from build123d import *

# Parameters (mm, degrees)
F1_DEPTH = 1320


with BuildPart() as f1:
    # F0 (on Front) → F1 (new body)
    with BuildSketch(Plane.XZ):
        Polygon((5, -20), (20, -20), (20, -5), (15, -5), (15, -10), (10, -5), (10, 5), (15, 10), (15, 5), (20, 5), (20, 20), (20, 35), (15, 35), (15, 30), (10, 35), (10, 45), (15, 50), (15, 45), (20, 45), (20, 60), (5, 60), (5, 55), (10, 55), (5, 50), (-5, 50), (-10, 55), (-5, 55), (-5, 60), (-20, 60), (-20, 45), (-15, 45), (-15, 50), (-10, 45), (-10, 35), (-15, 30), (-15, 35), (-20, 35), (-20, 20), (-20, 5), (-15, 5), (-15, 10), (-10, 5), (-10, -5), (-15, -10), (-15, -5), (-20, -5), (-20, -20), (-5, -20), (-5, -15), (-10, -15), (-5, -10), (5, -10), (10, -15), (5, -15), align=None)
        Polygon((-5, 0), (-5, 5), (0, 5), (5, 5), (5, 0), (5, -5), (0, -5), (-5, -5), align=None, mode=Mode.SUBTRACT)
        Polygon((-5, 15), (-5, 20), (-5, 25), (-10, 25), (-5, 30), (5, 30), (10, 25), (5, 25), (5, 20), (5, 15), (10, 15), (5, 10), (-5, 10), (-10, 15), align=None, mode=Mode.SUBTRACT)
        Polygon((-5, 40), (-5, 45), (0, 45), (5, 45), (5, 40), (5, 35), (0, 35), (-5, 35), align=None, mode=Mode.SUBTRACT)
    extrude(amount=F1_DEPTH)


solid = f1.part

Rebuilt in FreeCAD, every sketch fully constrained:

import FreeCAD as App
import Part
import Sketcher
from FreeCAD import Vector
Q = App.Units.Quantity


def add_polygon(sketch, points):
    """Adds a closed chain of lines whose ends are joined by coincident constraints."""
    first, n = sketch.GeometryCount, len(points)
    for a, b in zip(points, points[1:] + points[:1]):
        sketch.addGeometry(Part.LineSegment(App.Vector(*a, 0), App.Vector(*b, 0)), False)
    for i in range(n):
        sketch.addConstraint(Sketcher.Constraint("Coincident", first + i, 2, first + (i + 1) % n, 1))

doc = App.newDocument("Part")
body = doc.addObject("PartDesign::Body", "Body")

# Sketch on XZ plane
sketch1 = body.newObject("Sketcher::SketchObject", "Sketch")
sketch1.AttachmentSupport = (doc.getObject("XZ_Plane"), [""])
sketch1.MapMode = "FlatFace"
add_polygon(sketch1, [(5, -20), (20, -20), (20, -5), (15, -5), (15, -10), (10, -5), (10, 5), (15, 10), (15, 5), (20, 5), (20, 35), (15, 35), (15, 30), (10, 35), (10, 45), (15, 50), (15, 45), (20, 45), (20, 60), (5, 60), (5, 55), (10, 55), (5, 50), (-5, 50), (-10, 55), (-5, 55), (-5, 60), (-20, 60), (-20, 45), (-15, 45), (-15, 50), (-10, 45), (-10, 35), (-15, 30), (-15, 35), (-20, 35), (-20, 5), (-15, 5), (-15, 10), (-10, 5), (-10, -5), (-15, -10), (-15, -5), (-20, -5), (-20, -20), (-5, -20), (-5, -15), (-10, -15), (-5, -10), (5, -10), (10, -15), (5, -15)])  # lines 0-51
add_polygon(sketch1, [(-5, -5), (-5, 5), (5, 5), (5, -5)])  # lines 52-55
add_polygon(sketch1, [(-10, 15), (-5, 15), (-5, 25), (-10, 25), (-5, 30), (5, 30), (10, 25), (5, 25), (5, 15), (10, 15), (5, 10), (-5, 10)])  # lines 56-67
add_polygon(sketch1, [(-5, 35), (-5, 45), (5, 45), (5, 35)])  # lines 68-71
sketch1.addConstraint(Sketcher.Constraint("Horizontal", 0))
sketch1.addConstraint(Sketcher.Constraint("Vertical", 1))
sketch1.addConstraint(Sketcher.Constraint("Horizontal", 2))
sketch1.addConstraint(Sketcher.Constraint("Vertical", 3))
sketch1.addConstraint(Sketcher.Constraint("Vertical", 5))
sketch1.addConstraint(Sketcher.Constraint("Vertical", 7))
sketch1.addConstraint(Sketcher.Constraint("Horizontal", 8))
sketch1.addConstraint(Sketcher.Constraint("Vertical", 9))
sketch1.addConstraint(Sketcher.Constraint("Horizontal", 10))
sketch1.addConstraint(Sketcher.Constraint("Vertical", 11))
sketch1.addConstraint(Sketcher.Constraint("Vertical", 13))
sketch1.addConstraint(Sketcher.Constraint("Vertical", 15))
sketch1.addConstraint(Sketcher.Constraint("Horizontal", 16))
sketch1.addConstraint(Sketcher.Constraint("Vertical", 17))
sketch1.addConstraint(Sketcher.Constraint("Horizontal", 18))
sketch1.addConstraint(Sketcher.Constraint("Vertical", 19))
sketch1.addConstraint(Sketcher.Constraint("Horizontal", 20))
sketch1.addConstraint(Sketcher.Constraint("Horizontal", 22))
sketch1.addConstraint(Sketcher.Constraint("Horizontal", 24))
sketch1.addConstraint(Sketcher.Constraint("Vertical", 25))
sketch1.addConstraint(Sketcher.Constraint("Horizontal", 26))
sketch1.addConstraint(Sketcher.Constraint("Vertical", 27))
sketch1.addConstraint(Sketcher.Constraint("Horizontal", 28))
sketch1.addConstraint(Sketcher.Constraint("Vertical", 29))
sketch1.addConstraint(Sketcher.Constraint("Vertical", 31))
sketch1.addConstraint(Sketcher.Constraint("Vertical", 33))
sketch1.addConstraint(Sketcher.Constraint("Horizontal", 34))
sketch1.addConstraint(Sketcher.Constraint("Vertical", 35))
sketch1.addConstraint(Sketcher.Constraint("Horizontal", 36))
sketch1.addConstraint(Sketcher.Constraint("Vertical", 37))
sketch1.addConstraint(Sketcher.Constraint("Vertical", 39))
sketch1.addConstraint(Sketcher.Constraint("Vertical", 41))
sketch1.addConstraint(Sketcher.Constraint("Horizontal", 42))
sketch1.addConstraint(Sketcher.Constraint("Vertical", 43))
sketch1.addConstraint(Sketcher.Constraint("Horizontal", 44))
sketch1.addConstraint(Sketcher.Constraint("Vertical", 45))
sketch1.addConstraint(Sketcher.Constraint("Horizontal", 46))
sketch1.addConstraint(Sketcher.Constraint("Horizontal", 48))
sketch1.addConstraint(Sketcher.Constraint("Horizontal", 50))
sketch1.addConstraint(Sketcher.Constraint("Vertical", 51))
sketch1.addConstraint(Sketcher.Constraint("Vertical", 52))
sketch1.addConstraint(Sketcher.Constraint("Horizontal", 53))
sketch1.addConstraint(Sketcher.Constraint("Vertical", 54))
sketch1.addConstraint(Sketcher.Constraint("Horizontal", 55))
sketch1.addConstraint(Sketcher.Constraint("Horizontal", 56))
sketch1.addConstraint(Sketcher.Constraint("Vertical", 57))
sketch1.addConstraint(Sketcher.Constraint("Horizontal", 58))
sketch1.addConstraint(Sketcher.Constraint("Horizontal", 60))
sketch1.addConstraint(Sketcher.Constraint("Horizontal", 62))
sketch1.addConstraint(Sketcher.Constraint("Vertical", 63))
sketch1.addConstraint(Sketcher.Constraint("Horizontal", 64))
sketch1.addConstraint(Sketcher.Constraint("Horizontal", 66))
sketch1.addConstraint(Sketcher.Constraint("Vertical", 68))
sketch1.addConstraint(Sketcher.Constraint("Horizontal", 69))
sketch1.addConstraint(Sketcher.Constraint("Vertical", 70))
sketch1.addConstraint(Sketcher.Constraint("Horizontal", 71))
sketch1.addConstraint(Sketcher.Constraint("Symmetric", 1, 2, 35, 2, -1, 1))
sketch1.addConstraint(Sketcher.Constraint("Symmetric", 3, 2, 37, 2, -1, 1))
sketch1.addConstraint(Sketcher.Constraint("Symmetric", 4, 2, 38, 2, -1, 1))
sketch1.addConstraint(Sketcher.Constraint("Symmetric", 6, 2, 40, 2, -1, 1))
sketch1.addConstraint(Sketcher.Constraint("Symmetric", 8, 2, 42, 2, -1, 1))
sketch1.addConstraint(Sketcher.Constraint("Symmetric", 52, 2, 54, 2, -1, 1))
sketch1.addConstraint(Sketcher.Constraint("Symmetric", 50, 2, 56, 2, -1, 1))
sketch1.addConstraint(Sketcher.Constraint("Symmetric", 45, 2, 63, 2, -1, 1))
sketch1.addConstraint(Sketcher.Constraint("Symmetric", 47, 2, 65, 2, -1, 1))
sketch1.addConstraint(Sketcher.Constraint("Symmetric", 20, 2, 23, 2, -2))
sketch1.addConstraint(Sketcher.Constraint("Symmetric", 18, 2, 25, 2, -2))
sketch1.addConstraint(Sketcher.Constraint("Symmetric", 16, 2, 27, 2, -2))
sketch1.addConstraint(Sketcher.Constraint("Symmetric", 14, 2, 29, 2, -2))
sketch1.addConstraint(Sketcher.Constraint("Symmetric", 13, 2, 30, 2, -2))
sketch1.addConstraint(Sketcher.Constraint("Symmetric", 11, 2, 32, 2, -2))
sketch1.addConstraint(Sketcher.Constraint("Symmetric", 9, 2, 34, 2, -2))
sketch1.addConstraint(Sketcher.Constraint("Symmetric", 7, 2, 36, 2, -2))
sketch1.addConstraint(Sketcher.Constraint("Symmetric", 46, 2, 49, 2, -2))
sketch1.addConstraint(Sketcher.Constraint("Symmetric", 44, 2, 51, 2, -2))
sketch1.addConstraint(Sketcher.Constraint("Symmetric", 58, 2, 61, 2, -2))
sketch1.addConstraint(Sketcher.Constraint("Perpendicular", 4, 6))
sketch1.addConstraint(Sketcher.Constraint("Perpendicular", 6, 12))
sketch1.addConstraint(Sketcher.Constraint("Perpendicular", 12, 14))
sketch1.addConstraint(Sketcher.Constraint("Parallel", 14, 21))
sketch1.addConstraint(Sketcher.Constraint("Perpendicular", 21, 23))
sketch1.addConstraint(Sketcher.Constraint("Parallel", 23, 30))
sketch1.addConstraint(Sketcher.Constraint("Perpendicular", 30, 32))
sketch1.addConstraint(Sketcher.Constraint("Perpendicular", 38, 40))
sketch1.addConstraint(Sketcher.Constraint("Parallel", 40, 47))
sketch1.addConstraint(Sketcher.Constraint("Perpendicular", 47, 49))
sketch1.addConstraint(Sketcher.Constraint("Perpendicular", 49, 59))
sketch1.addConstraint(Sketcher.Constraint("Perpendicular", 59, 61))
sketch1.addConstraint(Sketcher.Constraint("Perpendicular", 61, 65))
sketch1.addConstraint(Sketcher.Constraint("Perpendicular", 65, 67))
sketch1.addConstraint(Sketcher.Constraint("Horizontal", 2, 2, 4, 2))
sketch1.addConstraint(Sketcher.Constraint("Horizontal", 5, 2, 7, 2))
sketch1.addConstraint(Sketcher.Constraint("Horizontal", 10, 2, 12, 2))
sketch1.addConstraint(Sketcher.Constraint("Horizontal", 13, 2, 15, 2))
sketch1.addConstraint(Sketcher.Constraint("Horizontal", 14, 2, 21, 2))
sketch1.addConstraint(Sketcher.Constraint("Horizontal", 40, 2, 47, 2))
sketch1.addConstraint(Sketcher.Constraint("Horizontal", 38, 2, 52, 2))
sketch1.addConstraint(Sketcher.Constraint("Horizontal", 32, 2, 59, 2))
sketch1.addConstraint(Sketcher.Constraint("Horizontal", 30, 2, 68, 2))
sketch1.addConstraint(Sketcher.Constraint("Horizontal", 34, 2, 70, 2))
sketch1.addConstraint(Sketcher.Constraint("Vertical", 7, 2, 10, 2))
sketch1.addConstraint(Sketcher.Constraint("Vertical", 5, 2, 12, 2))
sketch1.addConstraint(Sketcher.Constraint("Vertical", 11, 2, 14, 2))
sketch1.addConstraint(Sketcher.Constraint("Vertical", 9, 2, 16, 2))
sketch1.addConstraint(Sketcher.Constraint("Vertical", 13, 2, 20, 2))
sketch1.addConstraint(Sketcher.Constraint("Vertical", 19, 2, 21, 2))
sketch1.addConstraint(Sketcher.Constraint("Vertical", 25, 2, 44, 2))
sketch1.addConstraint(Sketcher.Constraint("Vertical", 39, 2, 46, 2))
sketch1.addConstraint(Sketcher.Constraint("Vertical", 45, 2, 47, 2))
sketch1.addConstraint(Sketcher.Constraint("Vertical", 47, 2, 52, 2))
sketch1.addConstraint(Sketcher.Constraint("Vertical", 46, 2, 58, 2))
sketch1.addConstraint(Sketcher.Constraint("Vertical", 57, 2, 59, 2))
sketch1.addConstraint(Sketcher.Constraint("Vertical", 59, 2, 66, 2))
sketch1.addConstraint(Sketcher.Constraint("Vertical", 66, 2, 68, 2))
sketch1.addConstraint(Sketcher.Constraint("Vertical", 65, 2, 69, 2))
sketch1.addConstraint(Sketcher.Constraint("Equal", 16, 20))
sketch1.addConstraint(Sketcher.Constraint("Equal", 44, 1))
sketch1.addConstraint(Sketcher.Constraint("Equal", 64, 3))
sketch1.addConstraint(Sketcher.Constraint("Equal", 71, 5))
sketch1.addConstraint(Sketcher.Constraint("Equal", 5, 13))
sketch1.addConstraint(Sketcher.Constraint("Equal", 1, 17))
sketch1.addConstraint(Sketcher.Constraint("Equal", 54, 57))
sketch1.addConstraint(Sketcher.Constraint("DistanceX", 0, 1, 0, 2, Q("15 mm")))
sketch1.addConstraint(Sketcher.Constraint("DistanceX", 22, 2, 22, 1, Q("10 mm")))
pad1 = body.newObject("PartDesign::Pad", "Pad")
pad1.Profile = sketch1
pad1.Length = 1320

doc.recompute()
